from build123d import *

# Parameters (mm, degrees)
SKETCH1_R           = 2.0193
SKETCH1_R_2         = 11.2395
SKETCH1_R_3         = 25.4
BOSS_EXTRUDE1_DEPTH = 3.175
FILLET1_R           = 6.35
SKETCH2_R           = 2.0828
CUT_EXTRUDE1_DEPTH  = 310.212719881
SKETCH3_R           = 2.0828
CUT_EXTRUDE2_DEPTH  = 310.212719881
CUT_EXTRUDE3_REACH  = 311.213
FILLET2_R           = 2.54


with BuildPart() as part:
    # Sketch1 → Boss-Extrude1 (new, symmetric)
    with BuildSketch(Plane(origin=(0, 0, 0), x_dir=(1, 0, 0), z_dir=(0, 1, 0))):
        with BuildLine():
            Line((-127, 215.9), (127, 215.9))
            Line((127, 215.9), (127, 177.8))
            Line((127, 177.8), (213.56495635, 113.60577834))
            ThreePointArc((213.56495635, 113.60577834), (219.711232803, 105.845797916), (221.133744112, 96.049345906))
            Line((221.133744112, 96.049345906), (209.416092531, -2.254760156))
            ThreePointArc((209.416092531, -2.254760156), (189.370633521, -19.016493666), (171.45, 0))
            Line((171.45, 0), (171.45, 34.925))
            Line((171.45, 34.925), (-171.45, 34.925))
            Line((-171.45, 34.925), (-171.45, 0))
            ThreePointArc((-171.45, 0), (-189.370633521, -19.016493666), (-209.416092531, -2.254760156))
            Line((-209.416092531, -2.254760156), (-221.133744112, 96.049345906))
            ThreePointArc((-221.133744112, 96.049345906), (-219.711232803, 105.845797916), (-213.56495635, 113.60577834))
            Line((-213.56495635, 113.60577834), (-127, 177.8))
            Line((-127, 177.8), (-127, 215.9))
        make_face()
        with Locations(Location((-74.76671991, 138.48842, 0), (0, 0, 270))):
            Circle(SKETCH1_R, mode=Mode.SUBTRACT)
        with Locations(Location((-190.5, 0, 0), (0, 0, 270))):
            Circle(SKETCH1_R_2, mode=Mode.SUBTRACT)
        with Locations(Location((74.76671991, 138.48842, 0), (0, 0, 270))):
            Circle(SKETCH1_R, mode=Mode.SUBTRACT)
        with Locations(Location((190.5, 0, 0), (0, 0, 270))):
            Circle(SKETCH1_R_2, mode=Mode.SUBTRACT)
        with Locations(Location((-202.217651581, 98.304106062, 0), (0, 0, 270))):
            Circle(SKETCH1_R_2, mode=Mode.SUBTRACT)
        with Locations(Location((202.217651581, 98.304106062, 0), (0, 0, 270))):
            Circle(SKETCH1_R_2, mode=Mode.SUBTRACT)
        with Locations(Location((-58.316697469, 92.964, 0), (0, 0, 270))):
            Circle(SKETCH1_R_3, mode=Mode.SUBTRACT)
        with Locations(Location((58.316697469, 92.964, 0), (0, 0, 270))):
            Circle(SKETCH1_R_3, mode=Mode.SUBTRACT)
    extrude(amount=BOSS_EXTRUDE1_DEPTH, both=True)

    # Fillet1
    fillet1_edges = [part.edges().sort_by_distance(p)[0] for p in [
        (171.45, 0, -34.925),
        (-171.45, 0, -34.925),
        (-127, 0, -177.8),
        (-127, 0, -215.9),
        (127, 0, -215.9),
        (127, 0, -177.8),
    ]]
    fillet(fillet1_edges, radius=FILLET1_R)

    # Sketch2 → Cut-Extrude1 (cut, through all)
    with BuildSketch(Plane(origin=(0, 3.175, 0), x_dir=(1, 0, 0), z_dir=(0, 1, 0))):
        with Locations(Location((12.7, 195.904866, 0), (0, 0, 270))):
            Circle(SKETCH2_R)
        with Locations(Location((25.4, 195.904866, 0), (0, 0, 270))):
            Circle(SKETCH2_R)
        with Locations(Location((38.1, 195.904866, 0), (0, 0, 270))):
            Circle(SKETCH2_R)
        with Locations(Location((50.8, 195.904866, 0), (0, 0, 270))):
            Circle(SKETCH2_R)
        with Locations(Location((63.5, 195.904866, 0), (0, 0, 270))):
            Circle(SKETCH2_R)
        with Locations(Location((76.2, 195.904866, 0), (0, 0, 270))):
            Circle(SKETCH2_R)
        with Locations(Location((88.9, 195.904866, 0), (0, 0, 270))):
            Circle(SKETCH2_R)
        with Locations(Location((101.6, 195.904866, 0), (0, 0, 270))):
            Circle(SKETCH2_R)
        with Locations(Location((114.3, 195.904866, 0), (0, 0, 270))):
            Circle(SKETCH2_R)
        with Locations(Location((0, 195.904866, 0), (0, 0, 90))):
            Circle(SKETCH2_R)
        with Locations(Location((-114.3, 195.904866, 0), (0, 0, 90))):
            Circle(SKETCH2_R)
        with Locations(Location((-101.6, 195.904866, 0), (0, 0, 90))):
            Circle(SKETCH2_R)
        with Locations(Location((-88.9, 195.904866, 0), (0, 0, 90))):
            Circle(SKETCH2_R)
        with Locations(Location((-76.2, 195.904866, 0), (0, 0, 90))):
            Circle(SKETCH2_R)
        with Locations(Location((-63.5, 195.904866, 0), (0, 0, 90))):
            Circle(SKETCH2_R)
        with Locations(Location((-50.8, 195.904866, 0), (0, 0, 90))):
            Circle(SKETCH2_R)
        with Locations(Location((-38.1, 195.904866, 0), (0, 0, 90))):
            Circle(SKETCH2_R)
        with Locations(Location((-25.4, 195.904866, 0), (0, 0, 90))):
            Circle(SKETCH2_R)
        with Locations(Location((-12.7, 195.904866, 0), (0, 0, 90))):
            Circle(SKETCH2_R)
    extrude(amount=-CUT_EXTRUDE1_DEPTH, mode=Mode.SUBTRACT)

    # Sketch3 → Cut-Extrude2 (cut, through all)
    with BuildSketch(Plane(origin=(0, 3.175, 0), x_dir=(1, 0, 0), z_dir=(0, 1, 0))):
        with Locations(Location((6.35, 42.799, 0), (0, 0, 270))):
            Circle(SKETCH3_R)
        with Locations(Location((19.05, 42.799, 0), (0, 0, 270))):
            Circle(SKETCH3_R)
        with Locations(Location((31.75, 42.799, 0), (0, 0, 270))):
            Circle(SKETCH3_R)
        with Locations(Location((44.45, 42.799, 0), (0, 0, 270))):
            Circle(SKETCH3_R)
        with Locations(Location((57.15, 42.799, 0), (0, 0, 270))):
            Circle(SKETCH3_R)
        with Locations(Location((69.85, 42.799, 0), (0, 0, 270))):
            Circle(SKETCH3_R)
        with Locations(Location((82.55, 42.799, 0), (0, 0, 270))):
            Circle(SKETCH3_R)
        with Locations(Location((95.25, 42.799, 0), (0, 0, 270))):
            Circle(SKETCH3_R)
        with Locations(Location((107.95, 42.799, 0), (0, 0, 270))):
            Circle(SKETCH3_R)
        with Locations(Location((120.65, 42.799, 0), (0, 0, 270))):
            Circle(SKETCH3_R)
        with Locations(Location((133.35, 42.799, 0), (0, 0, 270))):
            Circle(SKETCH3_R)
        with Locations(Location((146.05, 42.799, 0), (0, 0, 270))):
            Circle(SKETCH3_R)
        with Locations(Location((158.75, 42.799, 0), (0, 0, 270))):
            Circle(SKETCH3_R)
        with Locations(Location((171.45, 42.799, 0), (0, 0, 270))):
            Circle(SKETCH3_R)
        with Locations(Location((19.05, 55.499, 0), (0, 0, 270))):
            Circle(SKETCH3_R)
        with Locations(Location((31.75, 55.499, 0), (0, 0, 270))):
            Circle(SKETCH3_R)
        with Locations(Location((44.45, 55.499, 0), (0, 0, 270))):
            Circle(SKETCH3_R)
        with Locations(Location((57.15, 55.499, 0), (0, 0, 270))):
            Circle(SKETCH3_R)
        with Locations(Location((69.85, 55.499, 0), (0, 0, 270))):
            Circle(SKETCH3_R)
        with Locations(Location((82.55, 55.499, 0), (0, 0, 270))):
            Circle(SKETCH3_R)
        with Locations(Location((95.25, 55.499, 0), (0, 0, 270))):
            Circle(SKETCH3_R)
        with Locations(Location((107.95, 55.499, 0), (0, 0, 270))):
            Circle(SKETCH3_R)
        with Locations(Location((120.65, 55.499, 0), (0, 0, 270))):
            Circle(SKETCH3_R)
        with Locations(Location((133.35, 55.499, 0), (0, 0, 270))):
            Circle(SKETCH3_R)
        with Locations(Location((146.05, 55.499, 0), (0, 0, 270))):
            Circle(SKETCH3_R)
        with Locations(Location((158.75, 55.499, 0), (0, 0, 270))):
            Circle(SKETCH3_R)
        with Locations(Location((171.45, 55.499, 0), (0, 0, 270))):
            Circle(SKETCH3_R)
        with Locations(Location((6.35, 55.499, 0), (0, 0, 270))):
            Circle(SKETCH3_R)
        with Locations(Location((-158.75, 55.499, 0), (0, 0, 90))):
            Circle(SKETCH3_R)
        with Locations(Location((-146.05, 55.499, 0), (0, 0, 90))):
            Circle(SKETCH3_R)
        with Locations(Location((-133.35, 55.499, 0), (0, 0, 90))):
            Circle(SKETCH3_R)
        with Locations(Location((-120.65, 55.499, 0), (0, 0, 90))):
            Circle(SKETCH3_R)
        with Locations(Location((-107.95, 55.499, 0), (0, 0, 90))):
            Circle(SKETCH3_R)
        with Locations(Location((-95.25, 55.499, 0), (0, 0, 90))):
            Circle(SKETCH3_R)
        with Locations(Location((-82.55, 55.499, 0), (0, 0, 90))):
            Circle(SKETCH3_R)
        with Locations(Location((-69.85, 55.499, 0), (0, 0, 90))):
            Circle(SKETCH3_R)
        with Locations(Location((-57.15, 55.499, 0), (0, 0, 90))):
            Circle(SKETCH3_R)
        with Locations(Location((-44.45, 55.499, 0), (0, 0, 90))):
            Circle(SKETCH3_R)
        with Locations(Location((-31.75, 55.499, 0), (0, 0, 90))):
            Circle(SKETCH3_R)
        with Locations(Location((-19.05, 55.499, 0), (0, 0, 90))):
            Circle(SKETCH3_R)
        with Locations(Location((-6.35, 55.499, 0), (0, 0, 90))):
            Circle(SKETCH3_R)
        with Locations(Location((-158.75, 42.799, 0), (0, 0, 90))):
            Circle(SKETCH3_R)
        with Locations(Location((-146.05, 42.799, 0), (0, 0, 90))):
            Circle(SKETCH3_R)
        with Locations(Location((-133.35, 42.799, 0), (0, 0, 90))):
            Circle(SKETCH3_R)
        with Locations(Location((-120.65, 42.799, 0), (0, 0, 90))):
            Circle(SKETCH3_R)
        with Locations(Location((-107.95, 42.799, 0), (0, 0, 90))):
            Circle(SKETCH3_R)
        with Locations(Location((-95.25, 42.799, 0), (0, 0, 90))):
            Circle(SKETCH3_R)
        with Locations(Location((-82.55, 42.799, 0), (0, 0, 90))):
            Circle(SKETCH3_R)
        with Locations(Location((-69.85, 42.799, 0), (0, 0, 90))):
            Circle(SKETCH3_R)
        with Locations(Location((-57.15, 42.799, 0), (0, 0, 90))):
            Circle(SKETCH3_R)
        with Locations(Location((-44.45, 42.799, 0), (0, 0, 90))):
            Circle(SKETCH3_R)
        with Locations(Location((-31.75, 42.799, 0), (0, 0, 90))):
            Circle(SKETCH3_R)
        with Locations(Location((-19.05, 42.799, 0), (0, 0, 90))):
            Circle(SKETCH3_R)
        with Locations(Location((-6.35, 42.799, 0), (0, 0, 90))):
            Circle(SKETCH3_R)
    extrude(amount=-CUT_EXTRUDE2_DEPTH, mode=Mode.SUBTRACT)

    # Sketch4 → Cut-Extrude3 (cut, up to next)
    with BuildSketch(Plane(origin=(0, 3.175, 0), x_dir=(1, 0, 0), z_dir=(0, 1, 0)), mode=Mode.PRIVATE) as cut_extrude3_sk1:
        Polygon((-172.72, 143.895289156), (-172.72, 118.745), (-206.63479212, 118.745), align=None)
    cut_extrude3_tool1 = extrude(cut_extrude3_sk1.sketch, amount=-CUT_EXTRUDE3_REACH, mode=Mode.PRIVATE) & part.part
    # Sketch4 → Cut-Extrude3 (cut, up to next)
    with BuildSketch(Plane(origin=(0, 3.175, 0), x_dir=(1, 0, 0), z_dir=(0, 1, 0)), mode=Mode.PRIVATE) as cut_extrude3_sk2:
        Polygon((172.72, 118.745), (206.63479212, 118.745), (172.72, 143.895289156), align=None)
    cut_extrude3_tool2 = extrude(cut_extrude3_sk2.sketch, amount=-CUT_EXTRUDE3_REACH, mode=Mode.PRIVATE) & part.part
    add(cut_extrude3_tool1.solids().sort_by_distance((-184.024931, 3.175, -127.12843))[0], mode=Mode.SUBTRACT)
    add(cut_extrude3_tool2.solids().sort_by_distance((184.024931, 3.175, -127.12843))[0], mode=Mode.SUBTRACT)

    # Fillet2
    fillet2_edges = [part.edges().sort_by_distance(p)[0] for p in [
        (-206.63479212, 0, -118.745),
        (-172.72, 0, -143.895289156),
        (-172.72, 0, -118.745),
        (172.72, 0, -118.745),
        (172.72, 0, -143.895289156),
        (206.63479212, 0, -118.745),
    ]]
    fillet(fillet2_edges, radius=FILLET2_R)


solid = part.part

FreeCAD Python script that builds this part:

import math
import FreeCAD as App
import Part
import Sketcher
Q = App.Units.Quantity


def edges_at(feature, points):
    """Names of the edges that pass closest to the given points."""
    edges = feature.Shape.Edges
    near = lambda p: min(range(len(edges)), key=lambda i: edges[i].distToShape(Part.Vertex(*p))[0])
    return sorted({f"Edge{near(p) + 1}" for p in points})

doc = App.newDocument("Part")
body = doc.addObject("PartDesign::Body", "Body")

# Sketch on XZ plane
sketch1 = body.newObject("Sketcher::SketchObject", "Sketch")
sketch1.AttachmentSupport = (doc.getObject("XZ_Plane"), [""])
sketch1.MapMode = "FlatFace"
sketch1.addGeometry(Part.LineSegment(App.Vector(127, -215.9, 0), App.Vector(-127, -215.9, 0)), False)
sketch1.addGeometry(Part.LineSegment(App.Vector(-127, -215.9, 0), App.Vector(-127, -177.8, 0)), False)
sketch1.addGeometry(Part.LineSegment(App.Vector(-127, -177.8, 0), App.Vector(-213.6, -113.6, 0)), False)
sketch1.addGeometry(Part.ArcOfCircle(Part.Circle(App.Vector(-202.2, -98.3, 0), App.Vector(0, 0, 1), 19.1), math.radians(173), math.radians(233)), False)
sketch1.addGeometry(Part.LineSegment(App.Vector(-221.1, -96, 0), App.Vector(-209.4, 2.3, 0)), False)
sketch1.addGeometry(Part.ArcOfCircle(Part.Circle(App.Vector(-190.5, 0, 0), App.Vector(0, 0, 1), 19.1), math.radians(0), math.radians(173)), False)
sketch1.addGeometry(Part.LineSegment(App.Vector(-171.4, 0, 0), App.Vector(-171.4, -34.9, 0)), False)
sketch1.addGeometry(Part.LineSegment(App.Vector(-171.4, -34.9, 0), App.Vector(171.4, -34.9, 0)), False)
sketch1.addGeometry(Part.LineSegment(App.Vector(171.4, -34.9, 0), App.Vector(171.4, 0, 0)), False)
sketch1.addGeometry(Part.ArcOfCircle(Part.Circle(App.Vector(190.5, 0, 0), App.Vector(0, 0, 1), 19.1), math.radians(7), math.radians(180)), False)
sketch1.addGeometry(Part.LineSegment(App.Vector(209.4, 2.3, 0), App.Vector(221.1, -96, 0)), False)
sketch1.addGeometry(Part.ArcOfCircle(Part.Circle(App.Vector(202.2, -98.3, 0), App.Vector(0, 0, 1), 19.1), math.radians(-53), math.radians(7)), False)
sketch1.addGeometry(Part.LineSegment(App.Vector(213.6, -113.6, 0), App.Vector(127, -177.8, 0)), False)
sketch1.addGeometry(Part.LineSegment(App.Vector(127, -177.8, 0), App.Vector(127, -215.9, 0)), False)
sketch1.addGeometry(Part.Circle(App.Vector(190.5, 0, 0), App.Vector(0, 0, 1), 11.2), False)
sketch1.addGeometry(Part.Circle(App.Vector(-190.5, 0, 0), App.Vector(0, 0, 1), 11.2), False)
sketch1.addGeometry(Part.Circle(App.Vector(202.2, -98.3, 0), App.Vector(0, 0, 1), 11.2), False)
sketch1.addGeometry(Part.Circle(App.Vector(58.3, -93, 0), App.Vector(0, 0, 1), 25.4), False)
sketch1.addGeometry(Part.Circle(App.Vector(74.8, -138.5, 0), App.Vector(0, 0, 1), 2), False)
sketch1.addGeometry(Part.Circle(App.Vector(-58.3, -93, 0), App.Vector(0, 0, 1), 25.4), False)
sketch1.addGeometry(Part.Circle(App.Vector(-202.2, -98.3, 0), App.Vector(0, 0, 1), 11.2), False)
sketch1.addGeometry(Part.Circle(App.Vector(-74.8, -138.5, 0), App.Vector(0, 0, 1), 2), False)
sketch1.addConstraint(Sketcher.Constraint("Coincident", 0, 2, 1, 1))
sketch1.addConstraint(Sketcher.Constraint("Coincident", 1, 2, 2, 1))
sketch1.addConstraint(Sketcher.Constraint("Tangent", 2, 2, 3, 2))
sketch1.addConstraint(Sketcher.Constraint("Tangent", 3, 1, 4, 1))
sketch1.addConstraint(Sketcher.Constraint("Tangent", 4, 2, 5, 2))
sketch1.addConstraint(Sketcher.Constraint("Tangent", 5, 1, 6, 1))
sketch1.addConstraint(Sketcher.Constraint("Coincident", 6, 2, 7, 1))
sketch1.addConstraint(Sketcher.Constraint("Coincident", 7, 2, 8, 1))
sketch1.addConstraint(Sketcher.Constraint("Tangent", 8, 2, 9, 2))
sketch1.addConstraint(Sketcher.Constraint("Tangent", 9, 1, 10, 1))
sketch1.addConstraint(Sketcher.Constraint("Tangent", 10, 2, 11, 2))
sketch1.addConstraint(Sketcher.Constraint("Tangent", 11, 1, 12, 1))
sketch1.addConstraint(Sketcher.Constraint("Coincident", 12, 2, 13, 1))
sketch1.addConstraint(Sketcher.Constraint("Coincident", 13, 2, 0, 1))
sketch1.addConstraint(Sketcher.Constraint("Horizontal", 0))
sketch1.addConstraint(Sketcher.Constraint("Vertical", 1))
sketch1.addConstraint(Sketcher.Constraint("Vertical", 6))
sketch1.addConstraint(Sketcher.Constraint("Horizontal", 7))
sketch1.addConstraint(Sketcher.Constraint("Vertical", 8))
sketch1.addConstraint(Sketcher.Constraint("Vertical", 13))
sketch1.addConstraint(Sketcher.Constraint("Coincident", 14, 3, 9, 3))
sketch1.addConstraint(Sketcher.Constraint("Coincident", 15, 3, 5, 3))
sketch1.addConstraint(Sketcher.Constraint("Coincident", 16, 3, 11, 3))
sketch1.addConstraint(Sketcher.Constraint("Coincident", 20, 3, 3, 3))
sketch1.addConstraint(Sketcher.Constraint("Equal", 3, 5))
sketch1.addConstraint(Sketcher.Constraint("Equal", 5, 9))
sketch1.addConstraint(Sketcher.Constraint("Equal", 9, 11))
sketch1.addConstraint(Sketcher.Constraint("Equal", 14, 15))
sketch1.addConstraint(Sketcher.Constraint("Equal", 15, 16))
sketch1.addConstraint(Sketcher.Constraint("Equal", 17, 19))
sketch1.addConstraint(Sketcher.Constraint("Equal", 16, 20))
sketch1.addConstraint(Sketcher.Constraint("Equal", 18, 21))
sketch1.addConstraint(Sketcher.Constraint("Symmetric", 5, 3, 9, 3, -1, 1))
sketch1.addConstraint(Sketcher.Constraint("Symmetric", 3, 3, 11, 3, -2))
sketch1.addConstraint(Sketcher.Constraint("Symmetric", 17, 3, 19, 3, -2))
sketch1.addConstraint(Sketcher.Constraint("Symmetric", 18, 3, 21, 3, -2))
sketch1.addConstraint(Sketcher.Constraint("Symmetric", 1, 2, 12, 2, -2))
sketch1.addConstraint(Sketcher.Constraint("PointOnObject", 5, 3, -1))
sketch1.addConstraint(Sketcher.Constraint("Diameter", 17, Q("2 in")))
sketch1.addConstraint(Sketcher.Constraint("DistanceX", 0, 2, 0, 1, Q("10 in")))
sketch1.addConstraint(Sketcher.Constraint("Radius", 3, Q("0.75 in")))
sketch1.addConstraint(Sketcher.Constraint("Diameter", 14, Q("0.885 in")))
sketch1.addConstraint(Sketcher.Constraint("Diameter", 18, Q("0.159 in")))
sketch1.addConstraint(Sketcher.Constraint("DistanceX", 7, 1, 7, 2, Q("13.5 in")))
sketch1.addConstraint(Sketcher.Constraint("DistanceY", 1, 1, 1, 2, Q("1.5 in")))
sketch1.addConstraint(Sketcher.Constraint("DistanceY", 1, 2, -1, 1, Q("7 in")))
sketch1.addConstraint(Sketcher.Constraint("DistanceY", 6, 2, 6, 1, Q("1.375 in")))
sketch1.addConstraint(Sketcher.Constraint("DistanceY", 17, 3, -1, 1, Q("3.66 in")))
sketch1.addConstraint(Sketcher.Constraint("DistanceY", 18, 3, -1, 1, Q("5.4523 in")))
sketch1.addConstraint(Sketcher.Constraint("Distance", 2, 107.770078))
sketch1.addConstraint(Sketcher.Constraint("DistanceX", 3, 3, -1, 1, 202.217652))
sketch1.addConstraint(Sketcher.Constraint("DistanceX", -1, 1, 18, 3, 74.76672))
sketch1.addConstraint(Sketcher.Constraint("DistanceX", 3, 3, 17, 3, 260.534349))
pad1 = body.newObject("PartDesign::Pad", "Pad")
pad1.Profile = sketch1
pad1.Length = Q("0.25 in")
pad1.Midplane = True
doc.recompute()

fillet = body.newObject("PartDesign::Fillet", "Fillet")
fillet.Base = (pad1, edges_at(pad1, [
    (171.45, 0, -34.925),
    (-171.45, 0, -34.925),
    (-127, 0, -177.8),
    (-127, 0, -215.9),
    (127, 0, -215.9),
    (127, 0, -177.8),
]))
fillet.Radius = Q("0.25 in")

# Sketch on XZ plane
sketch2 = body.newObject("Sketcher::SketchObject", "Sketch001")
sketch2.AttachmentSupport = (doc.getObject("XZ_Plane"), [""])
sketch2.MapMode = "FlatFace"
sketch2.AttachmentOffset = App.Placement(App.Vector(0, 0, -0.125 * 25.4), App.Rotation())
sketch2.addGeometry(Part.Circle(App.Vector(12.7, -195.9, 0), App.Vector(0, 0, 1), 2.1), False)
sketch2.addGeometry(Part.Circle(App.Vector(25.4, -195.9, 0), App.Vector(0, 0, 1), 2.1), False)
sketch2.addGeometry(Part.Circle(App.Vector(38.1, -195.9, 0), App.Vector(0, 0, 1), 2.1), False)
sketch2.addGeometry(Part.Circle(App.Vector(50.8, -195.9, 0), App.Vector(0, 0, 1), 2.1), False)
sketch2.addGeometry(Part.Circle(App.Vector(63.5, -195.9, 0), App.Vector(0, 0, 1), 2.1), False)
sketch2.addGeometry(Part.Circle(App.Vector(76.2, -195.9, 0), App.Vector(0, 0, 1), 2.1), False)
sketch2.addGeometry(Part.Circle(App.Vector(88.9, -195.9, 0), App.Vector(0, 0, 1), 2.1), False)
sketch2.addGeometry(Part.Circle(App.Vector(101.6, -195.9, 0), App.Vector(0, 0, 1), 2.1), False)
sketch2.addGeometry(Part.Circle(App.Vector(114.3, -195.9, 0), App.Vector(0, 0, 1), 2.1), False)
sketch2.addGeometry(Part.Circle(App.Vector(0, -195.9, 0), App.Vector(0, 0, 1), 2.1), False)
sketch2.addGeometry(Part.Circle(App.Vector(-114.3, -195.9, 0), App.Vector(0, 0, 1), 2.1), False)
sketch2.addGeometry(Part.Circle(App.Vector(-101.6, -195.9, 0), App.Vector(0, 0, 1), 2.1), False)
sketch2.addGeometry(Part.Circle(App.Vector(-88.9, -195.9, 0), App.Vector(0, 0, 1), 2.1), False)
sketch2.addGeometry(Part.Circle(App.Vector(-76.2, -195.9, 0), App.Vector(0, 0, 1), 2.1), False)
sketch2.addGeometry(Part.Circle(App.Vector(-63.5, -195.9, 0), App.Vector(0, 0, 1), 2.1), False)
sketch2.addGeometry(Part.Circle(App.Vector(-50.8, -195.9, 0), App.Vector(0, 0, 1), 2.1), False)
sketch2.addGeometry(Part.Circle(App.Vector(-38.1, -195.9, 0), App.Vector(0, 0, 1), 2.1), False)
sketch2.addGeometry(Part.Circle(App.Vector(-25.4, -195.9, 0), App.Vector(0, 0, 1), 2.1), False)
sketch2.addGeometry(Part.Circle(App.Vector(-12.7, -195.9, 0), App.Vector(0, 0, 1), 2.1), False)
sketch2.addConstraint(Sketcher.Constraint("Equal", 0, 1))
sketch2.addConstraint(Sketcher.Constraint("Equal", 1, 2))
sketch2.addConstraint(Sketcher.Constraint("Equal", 2, 3))
sketch2.addConstraint(Sketcher.Constraint("Equal", 3, 4))
sketch2.addConstraint(Sketcher.Constraint("Equal", 4, 5))
sketch2.addConstraint(Sketcher.Constraint("Equal", 5, 6))
sketch2.addConstraint(Sketcher.Constraint("Equal", 6, 7))
sketch2.addConstraint(Sketcher.Constraint("Equal", 7, 8))
sketch2.addConstraint(Sketcher.Constraint("Equal", 8, 9))
sketch2.addConstraint(Sketcher.Constraint("Equal", 9, 10))
sketch2.addConstraint(Sketcher.Constraint("Equal", 10, 11))
sketch2.addConstraint(Sketcher.Constraint("Equal", 11, 12))
sketch2.addConstraint(Sketcher.Constraint("Equal", 12, 13))
sketch2.addConstraint(Sketcher.Constraint("Equal", 13, 14))
sketch2.addConstraint(Sketcher.Constraint("Equal", 14, 15))
sketch2.addConstraint(Sketcher.Constraint("Equal", 15, 16))
sketch2.addConstraint(Sketcher.Constraint("Equal", 16, 17))
sketch2.addConstraint(Sketcher.Constraint("Equal", 17, 18))
sketch2.addConstraint(Sketcher.Constraint("Symmetric", 8, 3, 10, 3, -2))
sketch2.addConstraint(Sketcher.Constraint("Symmetric", 7, 3, 11, 3, -2))
sketch2.addConstraint(Sketcher.Constraint("Symmetric", 6, 3, 12, 3, -2))
sketch2.addConstraint(Sketcher.Constraint("Symmetric", 5, 3, 13, 3, -2))
sketch2.addConstraint(Sketcher.Constraint("Symmetric", 4, 3, 14, 3, -2))
sketch2.addConstraint(Sketcher.Constraint("Symmetric", 3, 3, 15, 3, -2))
sketch2.addConstraint(Sketcher.Constraint("Symmetric", 2, 3, 16, 3, -2))
sketch2.addConstraint(Sketcher.Constraint("Symmetric", 1, 3, 17, 3, -2))
sketch2.addConstraint(Sketcher.Constraint("Symmetric", 0, 3, 18, 3, -2))
sketch2.addConstraint(Sketcher.Constraint("PointOnObject", 9, 3, -2))
sketch2.addConstraint(Sketcher.Constraint("Horizontal", 0, 3, 1, 3))
sketch2.addConstraint(Sketcher.Constraint("Horizontal", 1, 3, 2, 3))
sketch2.addConstraint(Sketcher.Constraint("Horizontal", 2, 3, 3, 3))
sketch2.addConstraint(Sketcher.Constraint("Horizontal", 3, 3, 4, 3))
sketch2.addConstraint(Sketcher.Constraint("Horizontal", 4, 3, 5, 3))
sketch2.addConstraint(Sketcher.Constraint("Horizontal", 5, 3, 6, 3))
sketch2.addConstraint(Sketcher.Constraint("Horizontal", 6, 3, 7, 3))
sketch2.addConstraint(Sketcher.Constraint("Horizontal", 7, 3, 8, 3))
sketch2.addConstraint(Sketcher.Constraint("Horizontal", 8, 3, 9, 3))
sketch2.addConstraint(Sketcher.Constraint("Diameter", 0, Q("0.164 in")))
sketch2.addConstraint(Sketcher.Constraint("DistanceX", -1, 1, 1, 3, Q("1 in")))
sketch2.addConstraint(Sketcher.Constraint("DistanceX", -1, 1, 3, 3, Q("2 in")))
sketch2.addConstraint(Sketcher.Constraint("DistanceX", -1, 1, 5, 3, Q("3 in")))
sketch2.addConstraint(Sketcher.Constraint("DistanceX", -1, 1, 7, 3, Q("4 in")))
sketch2.addConstraint(Sketcher.Constraint("DistanceX", 0, 3, 2, 3, Q("1 in")))
sketch2.addConstraint(Sketcher.Constraint("DistanceX", 2, 3, 4, 3, Q("1 in")))
sketch2.addConstraint(Sketcher.Constraint("DistanceX", 4, 3, 6, 3, Q("1 in")))
sketch2.addConstraint(Sketcher.Constraint("DistanceX", 6, 3, 8, 3, Q("1 in")))
sketch2.addConstraint(Sketcher.Constraint("DistanceX", 10, 3, 0, 3, Q("5 in")))
sketch2.addConstraint(Sketcher.Constraint("DistanceY", 0, 3, -1, 1, 195.904866))
pocket1 = body.newObject("PartDesign::Pocket", "Pocket")
pocket1.Profile = sketch2
pocket1.Type = "ThroughAll"
pocket1.Reversed = True

# Sketch on XZ plane
sketch3 = body.newObject("Sketcher::SketchObject", "Sketch002")
sketch3.AttachmentSupport = (doc.getObject("XZ_Plane"), [""])
sketch3.MapMode = "FlatFace"
sketch3.AttachmentOffset = App.Placement(App.Vector(0, 0, -0.125 * 25.4), App.Rotation())
sketch3.addGeometry(Part.Circle(App.Vector(6.3, -42.8, 0), App.Vector(0, 0, 1), 2.1), False)
sketch3.addGeometry(Part.Circle(App.Vector(19.1, -42.8, 0), App.Vector(0, 0, 1), 2.1), False)
sketch3.addGeometry(Part.Circle(App.Vector(31.8, -42.8, 0), App.Vector(0, 0, 1), 2.1), False)
sketch3.addGeometry(Part.Circle(App.Vector(44.5, -42.8, 0), App.Vector(0, 0, 1), 2.1), False)
sketch3.addGeometry(Part.Circle(App.Vector(57.1, -42.8, 0), App.Vector(0, 0, 1), 2.1), False)
sketch3.addGeometry(Part.Circle(App.Vector(69.8, -42.8, 0), App.Vector(0, 0, 1), 2.1), False)
sketch3.addGeometry(Part.Circle(App.Vector(82.5, -42.8, 0), App.Vector(0, 0, 1), 2.1), False)
sketch3.addGeometry(Part.Circle(App.Vector(95.2, -42.8, 0), App.Vector(0, 0, 1), 2.1), False)
sketch3.addGeometry(Part.Circle(App.Vector(108, -42.8, 0), App.Vector(0, 0, 1), 2.1), False)
sketch3.addGeometry(Part.Circle(App.Vector(120.7, -42.8, 0), App.Vector(0, 0, 1), 2.1), False)
sketch3.addGeometry(Part.Circle(App.Vector(133.3, -42.8, 0), App.Vector(0, 0, 1), 2.1), False)
sketch3.addGeometry(Part.Circle(App.Vector(146.1, -42.8, 0), App.Vector(0, 0, 1), 2.1), False)
sketch3.addGeometry(Part.Circle(App.Vector(158.8, -42.8, 0), App.Vector(0, 0, 1), 2.1), False)
sketch3.addGeometry(Part.Circle(App.Vector(171.4, -42.8, 0), App.Vector(0, 0, 1), 2.1), False)
sketch3.addGeometry(Part.Circle(App.Vector(19.1, -55.5, 0), App.Vector(0, 0, 1), 2.1), False)
sketch3.addGeometry(Part.Circle(App.Vector(31.8, -55.5, 0), App.Vector(0, 0, 1), 2.1), False)
sketch3.addGeometry(Part.Circle(App.Vector(44.5, -55.5, 0), App.Vector(0, 0, 1), 2.1), False)
sketch3.addGeometry(Part.Circle(App.Vector(57.1, -55.5, 0), App.Vector(0, 0, 1), 2.1), False)
sketch3.addGeometry(Part.Circle(App.Vector(69.8, -55.5, 0), App.Vector(0, 0, 1), 2.1), False)
sketch3.addGeometry(Part.Circle(App.Vector(82.5, -55.5, 0), App.Vector(0, 0, 1), 2.1), False)
sketch3.addGeometry(Part.Circle(App.Vector(95.2, -55.5, 0), App.Vector(0, 0, 1), 2.1), False)
sketch3.addGeometry(Part.Circle(App.Vector(108, -55.5, 0), App.Vector(0, 0, 1), 2.1), False)
sketch3.addGeometry(Part.Circle(App.Vector(120.7, -55.5, 0), App.Vector(0, 0, 1), 2.1), False)
sketch3.addGeometry(Part.Circle(App.Vector(133.3, -55.5, 0), App.Vector(0, 0, 1), 2.1), False)
sketch3.addGeometry(Part.Circle(App.Vector(146.1, -55.5, 0), App.Vector(0, 0, 1), 2.1), False)
sketch3.addGeometry(Part.Circle(App.Vector(158.8, -55.5, 0), App.Vector(0, 0, 1), 2.1), False)
sketch3.addGeometry(Part.Circle(App.Vector(171.4, -55.5, 0), App.Vector(0, 0, 1), 2.1), False)
sketch3.addGeometry(Part.Circle(App.Vector(6.3, -55.5, 0), App.Vector(0, 0, 1), 2.1), False)
sketch3.addGeometry(Part.Circle(App.Vector(-158.8, -55.5, 0), App.Vector(0, 0, 1), 2.1), False)
sketch3.addGeometry(Part.Circle(App.Vector(-146.1, -55.5, 0), App.Vector(0, 0, 1), 2.1), False)
sketch3.addGeometry(Part.Circle(App.Vector(-133.3, -55.5, 0), App.Vector(0, 0, 1), 2.1), False)
sketch3.addGeometry(Part.Circle(App.Vector(-120.7, -55.5, 0), App.Vector(0, 0, 1), 2.1), False)
sketch3.addGeometry(Part.Circle(App.Vector(-108, -55.5, 0), App.Vector(0, 0, 1), 2.1), False)
sketch3.addGeometry(Part.Circle(App.Vector(-95.2, -55.5, 0), App.Vector(0, 0, 1), 2.1), False)
sketch3.addGeometry(Part.Circle(App.Vector(-82.5, -55.5, 0), App.Vector(0, 0, 1), 2.1), False)
sketch3.addGeometry(Part.Circle(App.Vector(-69.8, -55.5, 0), App.Vector(0, 0, 1), 2.1), False)
sketch3.addGeometry(Part.Circle(App.Vector(-57.1, -55.5, 0), App.Vector(0, 0, 1), 2.1), False)
sketch3.addGeometry(Part.Circle(App.Vector(-44.5, -55.5, 0), App.Vector(0, 0, 1), 2.1), False)
sketch3.addGeometry(Part.Circle(App.Vector(-31.8, -55.5, 0), App.Vector(0, 0, 1), 2.1), False)
sketch3.addGeometry(Part.Circle(App.Vector(-19.1, -55.5, 0), App.Vector(0, 0, 1), 2.1), False)
sketch3.addGeometry(Part.Circle(App.Vector(-6.3, -55.5, 0), App.Vector(0, 0, 1), 2.1), False)
sketch3.addGeometry(Part.Circle(App.Vector(-158.8, -42.8, 0), App.Vector(0, 0, 1), 2.1), False)
sketch3.addGeometry(Part.Circle(App.Vector(-146.1, -42.8, 0), App.Vector(0, 0, 1), 2.1), False)
sketch3.addGeometry(Part.Circle(App.Vector(-133.3, -42.8, 0), App.Vector(0, 0, 1), 2.1), False)
sketch3.addGeometry(Part.Circle(App.Vector(-120.7, -42.8, 0), App.Vector(0, 0, 1), 2.1), False)
sketch3.addGeometry(Part.Circle(App.Vector(-108, -42.8, 0), App.Vector(0, 0, 1), 2.1), False)
sketch3.addGeometry(Part.Circle(App.Vector(-95.2, -42.8, 0), App.Vector(0, 0, 1), 2.1), False)
sketch3.addGeometry(Part.Circle(App.Vector(-82.5, -42.8, 0), App.Vector(0, 0, 1), 2.1), False)
sketch3.addGeometry(Part.Circle(App.Vector(-69.8, -42.8, 0), App.Vector(0, 0, 1), 2.1), False)
sketch3.addGeometry(Part.Circle(App.Vector(-57.1, -42.8, 0), App.Vector(0, 0, 1), 2.1), False)
sketch3.addGeometry(Part.Circle(App.Vector(-44.5, -42.8, 0), App.Vector(0, 0, 1), 2.1), False)
sketch3.addGeometry(Part.Circle(App.Vector(-31.8, -42.8, 0), App.Vector(0, 0, 1), 2.1), False)
sketch3.addGeometry(Part.Circle(App.Vector(-19.1, -42.8, 0), App.Vector(0, 0, 1), 2.1), False)
sketch3.addGeometry(Part.Circle(App.Vector(-6.3, -42.8, 0), App.Vector(0, 0, 1), 2.1), False)
sketch3.addConstraint(Sketcher.Constraint("Equal", 0, 1))
sketch3.addConstraint(Sketcher.Constraint("Equal", 1, 2))
sketch3.addConstraint(Sketcher.Constraint("Equal", 2, 3))
sketch3.addConstraint(Sketcher.Constraint("Equal", 3, 4))
sketch3.addConstraint(Sketcher.Constraint("Equal", 4, 5))
sketch3.addConstraint(Sketcher.Constraint("Equal", 5, 6))
sketch3.addConstraint(Sketcher.Constraint("Equal", 6, 7))
sketch3.addConstraint(Sketcher.Constraint("Equal", 7, 8))
sketch3.addConstraint(Sketcher.Constraint("Equal", 8, 9))
sketch3.addConstraint(Sketcher.Constraint("Equal", 9, 10))
sketch3.addConstraint(Sketcher.Constraint("Equal", 10, 11))
sketch3.addConstraint(Sketcher.Constraint("Equal", 11, 12))
sketch3.addConstraint(Sketcher.Constraint("Equal", 12, 13))
sketch3.addConstraint(Sketcher.Constraint("Equal", 13, 14))
sketch3.addConstraint(Sketcher.Constraint("Equal", 14, 15))
sketch3.addConstraint(Sketcher.Constraint("Equal", 15, 16))
sketch3.addConstraint(Sketcher.Constraint("Equal", 16, 17))
sketch3.addConstraint(Sketcher.Constraint("Equal", 17, 18))
sketch3.addConstraint(Sketcher.Constraint("Equal", 18, 19))
sketch3.addConstraint(Sketcher.Constraint("Equal", 19, 20))
sketch3.addConstraint(Sketcher.Constraint("Equal", 20, 21))
sketch3.addConstraint(Sketcher.Constraint("Equal", 21, 22))
sketch3.addConstraint(Sketcher.Constraint("Equal", 22, 23))
sketch3.addConstraint(Sketcher.Constraint("Equal", 23, 24))
sketch3.addConstraint(Sketcher.Constraint("Equal", 24, 25))
sketch3.addConstraint(Sketcher.Constraint("Equal", 25, 26))
sketch3.addConstraint(Sketcher.Constraint("Equal", 26, 27))
sketch3.addConstraint(Sketcher.Constraint("Equal", 27, 28))
sketch3.addConstraint(Sketcher.Constraint("Equal", 28, 29))
sketch3.addConstraint(Sketcher.Constraint("Equal", 29, 30))
sketch3.addConstraint(Sketcher.Constraint("Equal", 30, 31))
sketch3.addConstraint(Sketcher.Constraint("Equal", 31, 32))
sketch3.addConstraint(Sketcher.Constraint("Equal", 32, 33))
sketch3.addConstraint(Sketcher.Constraint("Equal", 33, 34))
sketch3.addConstraint(Sketcher.Constraint("Equal", 34, 35))
sketch3.addConstraint(Sketcher.Constraint("Equal", 35, 36))
sketch3.addConstraint(Sketcher.Constraint("Equal", 36, 37))
sketch3.addConstraint(Sketcher.Constraint("Equal", 37, 38))
sketch3.addConstraint(Sketcher.Constraint("Equal", 38, 39))
sketch3.addConstraint(Sketcher.Constraint("Equal", 39, 40))
sketch3.addConstraint(Sketcher.Constraint("Equal", 40, 41))
sketch3.addConstraint(Sketcher.Constraint("Equal", 41, 42))
sketch3.addConstraint(Sketcher.Constraint("Equal", 42, 43))
sketch3.addConstraint(Sketcher.Constraint("Equal", 43, 44))
sketch3.addConstraint(Sketcher.Constraint("Equal", 44, 45))
sketch3.addConstraint(Sketcher.Constraint("Equal", 45, 46))
sketch3.addConstraint(Sketcher.Constraint("Equal", 46, 47))
sketch3.addConstraint(Sketcher.Constraint("Equal", 47, 48))
sketch3.addConstraint(Sketcher.Constraint("Equal", 48, 49))
sketch3.addConstraint(Sketcher.Constraint("Equal", 49, 50))
sketch3.addConstraint(Sketcher.Constraint("Equal", 50, 51))
sketch3.addConstraint(Sketcher.Constraint("Equal", 51, 52))
sketch3.addConstraint(Sketcher.Constraint("Equal", 52, 53))
sketch3.addConstraint(Sketcher.Constraint("Symmetric", 25, 3, 28, 3, -2))
sketch3.addConstraint(Sketcher.Constraint("Symmetric", 24, 3, 29, 3, -2))
sketch3.addConstraint(Sketcher.Constraint("Symmetric", 23, 3, 30, 3, -2))
sketch3.addConstraint(Sketcher.Constraint("Symmetric", 22, 3, 31, 3, -2))
sketch3.addConstraint(Sketcher.Constraint("Symmetric", 21, 3, 32, 3, -2))
sketch3.addConstraint(Sketcher.Constraint("Symmetric", 20, 3, 33, 3, -2))
sketch3.addConstraint(Sketcher.Constraint("Symmetric", 19, 3, 34, 3, -2))
sketch3.addConstraint(Sketcher.Constraint("Symmetric", 18, 3, 35, 3, -2))
sketch3.addConstraint(Sketcher.Constraint("Symmetric", 17, 3, 36, 3, -2))
sketch3.addConstraint(Sketcher.Constraint("Symmetric", 16, 3, 37, 3, -2))
sketch3.addConstraint(Sketcher.Constraint("Symmetric", 15, 3, 38, 3, -2))
sketch3.addConstraint(Sketcher.Constraint("Symmetric", 14, 3, 39, 3, -2))
sketch3.addConstraint(Sketcher.Constraint("Symmetric", 27, 3, 40, 3, -2))
sketch3.addConstraint(Sketcher.Constraint("Symmetric", 12, 3, 41, 3, -2))
sketch3.addConstraint(Sketcher.Constraint("Symmetric", 11, 3, 42, 3, -2))
sketch3.addConstraint(Sketcher.Constraint("Symmetric", 10, 3, 43, 3, -2))
sketch3.addConstraint(Sketcher.Constraint("Symmetric", 9, 3, 44, 3, -2))
sketch3.addConstraint(Sketcher.Constraint("Symmetric", 8, 3, 45, 3, -2))
sketch3.addConstraint(Sketcher.Constraint("Symmetric", 7, 3, 46, 3, -2))
sketch3.addConstraint(Sketcher.Constraint("Symmetric", 6, 3, 47, 3, -2))
sketch3.addConstraint(Sketcher.Constraint("Symmetric", 5, 3, 48, 3, -2))
sketch3.addConstraint(Sketcher.Constraint("Symmetric", 4, 3, 49, 3, -2))
sketch3.addConstraint(Sketcher.Constraint("Symmetric", 3, 3, 50, 3, -2))
sketch3.addConstraint(Sketcher.Constraint("Symmetric", 2, 3, 51, 3, -2))
sketch3.addConstraint(Sketcher.Constraint("Symmetric", 1, 3, 52, 3, -2))
sketch3.addConstraint(Sketcher.Constraint("Symmetric", 0, 3, 53, 3, -2))
sketch3.addConstraint(Sketcher.Constraint("Horizontal", 0, 3, 1, 3))
sketch3.addConstraint(Sketcher.Constraint("Horizontal", 1, 3, 2, 3))
sketch3.addConstraint(Sketcher.Constraint("Horizontal", 2, 3, 3, 3))
sketch3.addConstraint(Sketcher.Constraint("Horizontal", 3, 3, 4, 3))
sketch3.addConstraint(Sketcher.Constraint("Horizontal", 4, 3, 5, 3))
sketch3.addConstraint(Sketcher.Constraint("Horizontal", 5, 3, 6, 3))
sketch3.addConstraint(Sketcher.Constraint("Horizontal", 6, 3, 7, 3))
sketch3.addConstraint(Sketcher.Constraint("Horizontal", 7, 3, 8, 3))
sketch3.addConstraint(Sketcher.Constraint("Horizontal", 8, 3, 9, 3))
sketch3.addConstraint(Sketcher.Constraint("Horizontal", 9, 3, 10, 3))
sketch3.addConstraint(Sketcher.Constraint("Horizontal", 10, 3, 11, 3))
sketch3.addConstraint(Sketcher.Constraint("Horizontal", 11, 3, 12, 3))
sketch3.addConstraint(Sketcher.Constraint("Horizontal", 12, 3, 13, 3))
sketch3.addConstraint(Sketcher.Constraint("Horizontal", 14, 3, 15, 3))
sketch3.addConstraint(Sketcher.Constraint("Horizontal", 15, 3, 16, 3))
sketch3.addConstraint(Sketcher.Constraint("Horizontal", 16, 3, 17, 3))
sketch3.addConstraint(Sketcher.Constraint("Horizontal", 17, 3, 18, 3))
sketch3.addConstraint(Sketcher.Constraint("Horizontal", 18, 3, 19, 3))
sketch3.addConstraint(Sketcher.Constraint("Horizontal", 19, 3, 20, 3))
sketch3.addConstraint(Sketcher.Constraint("Horizontal", 20, 3, 21, 3))
sketch3.addConstraint(Sketcher.Constraint("Horizontal", 21, 3, 22, 3))
sketch3.addConstraint(Sketcher.Constraint("Horizontal", 22, 3, 23, 3))
sketch3.addConstraint(Sketcher.Constraint("Horizontal", 23, 3, 24, 3))
sketch3.addConstraint(Sketcher.Constraint("Horizontal", 24, 3, 25, 3))
sketch3.addConstraint(Sketcher.Constraint("Horizontal", 25, 3, 26, 3))
sketch3.addConstraint(Sketcher.Constraint("Horizontal", 26, 3, 27, 3))
sketch3.addConstraint(Sketcher.Constraint("Vertical", 1, 3, 14, 3))
sketch3.addConstraint(Sketcher.Constraint("Vertical", 2, 3, 15, 3))
sketch3.addConstraint(Sketcher.Constraint("Vertical", 3, 3, 16, 3))
sketch3.addConstraint(Sketcher.Constraint("Vertical", 4, 3, 17, 3))
sketch3.addConstraint(Sketcher.Constraint("Vertical", 5, 3, 18, 3))
sketch3.addConstraint(Sketcher.Constraint("Vertical", 6, 3, 19, 3))
sketch3.addConstraint(Sketcher.Constraint("Vertical", 7, 3, 20, 3))
sketch3.addConstraint(Sketcher.Constraint("Vertical", 8, 3, 21, 3))
sketch3.addConstraint(Sketcher.Constraint("Vertical", 9, 3, 22, 3))
sketch3.addConstraint(Sketcher.Constraint("Vertical", 10, 3, 23, 3))
sketch3.addConstraint(Sketcher.Constraint("Vertical", 11, 3, 24, 3))
sketch3.addConstraint(Sketcher.Constraint("Vertical", 12, 3, 25, 3))
sketch3.addConstraint(Sketcher.Constraint("Vertical", 13, 3, 26, 3))
sketch3.addConstraint(Sketcher.Constraint("Vertical", 0, 3, 27, 3))
sketch3.addConstraint(Sketcher.Constraint("Diameter", 0, Q("0.164 in")))
sketch3.addConstraint(Sketcher.Constraint("DistanceX", 0, 3, 2, 3, Q("1 in")))
sketch3.addConstraint(Sketcher.Constraint("DistanceX", 1, 3, 3, 3, Q("1 in")))
sketch3.addConstraint(Sketcher.Constraint("DistanceX", 2, 3, 4, 3, Q("1 in")))
sketch3.addConstraint(Sketcher.Constraint("DistanceX", 3, 3, 5, 3, Q("1 in")))
sketch3.addConstraint(Sketcher.Constraint("DistanceX", 4, 3, 6, 3, Q("1 in")))
sketch3.addConstraint(Sketcher.Constraint("DistanceX", 5, 3, 7, 3, Q("1 in")))
sketch3.addConstraint(Sketcher.Constraint("DistanceX", 6, 3, 8, 3, Q("1 in")))
sketch3.addConstraint(Sketcher.Constraint("DistanceX", 7, 3, 9, 3, Q("1 in")))
sketch3.addConstraint(Sketcher.Constraint("DistanceX", 8, 3, 10, 3, Q("1 in")))
sketch3.addConstraint(Sketcher.Constraint("DistanceX", 9, 3, 11, 3, Q("1 in")))
sketch3.addConstraint(Sketcher.Constraint("DistanceX", 10, 3, 12, 3, Q("1 in")))
sketch3.addConstraint(Sketcher.Constraint("DistanceX", 11, 3, 13, 3, Q("1 in")))
sketch3.addConstraint(Sketcher.Constraint("DistanceX", 28, 3, 14, 3, Q("7 in")))
sketch3.addConstraint(Sketcher.Constraint("DistanceX", 0, 3, 1, 3, Q("0.5 in")))
sketch3.addConstraint(Sketcher.Constraint("DistanceY", 14, 3, 1, 3, Q("0.5 in")))
sketch3.addConstraint(Sketcher.Constraint("DistanceY", 0, 3, -1, 1, Q("1.685 in")))
pocket2 = body.newObject("PartDesign::Pocket", "Pocket001")
pocket2.Profile = sketch3
pocket2.Type = "ThroughAll"
pocket2.Reversed = True

# Sketch on XZ plane
sketch4 = body.newObject("Sketcher::SketchObject", "Sketch003")
sketch4.AttachmentSupport = (doc.getObject("XZ_Plane"), [""])
sketch4.MapMode = "FlatFace"
sketch4.AttachmentOffset = App.Placement(App.Vector(0, 0, -0.125 * 25.4), App.Rotation())
sketch4.addGeometry(Part.LineSegment(App.Vector(-173, -119, 0), App.Vector(-173, -144, 0)), False)
sketch4.addGeometry(Part.LineSegment(App.Vector(-173, -144, 0), App.Vector(-207, -119, 0)), False)
sketch4.addGeometry(Part.LineSegment(App.Vector(-207, -119, 0), App.Vector(-173, -119, 0)), False)
sketch4.addConstraint(Sketcher.Constraint("Coincident", 0, 2, 1, 1))
sketch4.addConstraint(Sketcher.Constraint("Coincident", 1, 2, 2, 1))
sketch4.addConstraint(Sketcher.Constraint("Coincident", 2, 2, 0, 1))
sketch4.addConstraint(Sketcher.Constraint("Vertical", 0))
sketch4.addConstraint(Sketcher.Constraint("Horizontal", 2))
sketch4.addConstraint(Sketcher.Constraint("DistanceX", 0, 2, -1, 1, Q("6.8 in")))
sketch4.addConstraint(Sketcher.Constraint("DistanceY", 1, 2, -1, 1, Q("4.675 in")))
sketch4.addConstraint(Sketcher.Constraint("DistanceY", 0, 2, 0, 1, 25.150289))
sketch4.addConstraint(Sketcher.Constraint("DistanceX", 2, 1, 2, 2, 33.914792))
pocket3 = body.newObject("PartDesign::Pocket", "Pocket002")
pocket3.Profile = sketch4
pocket3.Type = "UpToFirst"
pocket3.Reversed = True

# Sketch on XZ plane
sketch5 = body.newObject("Sketcher::SketchObject", "Sketch004")
sketch5.AttachmentSupport = (doc.getObject("XZ_Plane"), [""])
sketch5.MapMode = "FlatFace"
sketch5.AttachmentOffset = App.Placement(App.Vector(0, 0, -0.125 * 25.4), App.Rotation())
sketch5.addGeometry(Part.LineSegment(App.Vector(173, -119, 0), App.Vector(207, -119, 0)), False)
sketch5.addGeometry(Part.LineSegment(App.Vector(207, -119, 0), App.Vector(173, -144, 0)), False)
sketch5.addGeometry(Part.LineSegment(App.Vector(173, -144, 0), App.Vector(173, -119, 0)), False)
sketch5.addConstraint(Sketcher.Constraint("Coincident", 0, 2, 1, 1))
sketch5.addConstraint(Sketcher.Constraint("Coincident", 1, 2, 2, 1))
sketch5.addConstraint(Sketcher.Constraint("Coincident", 2, 2, 0, 1))
sketch5.addConstraint(Sketcher.Constraint("Horizontal", 0))
sketch5.addConstraint(Sketcher.Constraint("Vertical", 2))
sketch5.addConstraint(Sketcher.Constraint("DistanceX", -1, 1, 1, 2, Q("6.8 in")))
sketch5.addConstraint(Sketcher.Constraint("DistanceY", 0, 2, -1, 1, Q("4.675 in")))
sketch5.addConstraint(Sketcher.Constraint("DistanceY", 2, 1, 2, 2, 25.150289))
sketch5.addConstraint(Sketcher.Constraint("DistanceX", 0, 1, 0, 2, 33.914792))
pocket4 = body.newObject("PartDesign::Pocket", "Pocket003")
pocket4.Profile = sketch5
pocket4.Type = "UpToFirst"
pocket4.Reversed = True
doc.recompute()

fillet2 = body.newObject("PartDesign::Fillet", "Fillet001")
fillet2.Base = (pocket4, edges_at(pocket4, [
    (-206.635, 0, -118.745),
    (-172.72, 0, -143.895),
    (-172.72, 0, -118.745),
    (172.72, 0, -118.745),
    (172.72, 0, -143.895),
    (206.635, 0, -118.745),
]))
fillet2.Radius = Q("0.1 in")

doc.recompute()
